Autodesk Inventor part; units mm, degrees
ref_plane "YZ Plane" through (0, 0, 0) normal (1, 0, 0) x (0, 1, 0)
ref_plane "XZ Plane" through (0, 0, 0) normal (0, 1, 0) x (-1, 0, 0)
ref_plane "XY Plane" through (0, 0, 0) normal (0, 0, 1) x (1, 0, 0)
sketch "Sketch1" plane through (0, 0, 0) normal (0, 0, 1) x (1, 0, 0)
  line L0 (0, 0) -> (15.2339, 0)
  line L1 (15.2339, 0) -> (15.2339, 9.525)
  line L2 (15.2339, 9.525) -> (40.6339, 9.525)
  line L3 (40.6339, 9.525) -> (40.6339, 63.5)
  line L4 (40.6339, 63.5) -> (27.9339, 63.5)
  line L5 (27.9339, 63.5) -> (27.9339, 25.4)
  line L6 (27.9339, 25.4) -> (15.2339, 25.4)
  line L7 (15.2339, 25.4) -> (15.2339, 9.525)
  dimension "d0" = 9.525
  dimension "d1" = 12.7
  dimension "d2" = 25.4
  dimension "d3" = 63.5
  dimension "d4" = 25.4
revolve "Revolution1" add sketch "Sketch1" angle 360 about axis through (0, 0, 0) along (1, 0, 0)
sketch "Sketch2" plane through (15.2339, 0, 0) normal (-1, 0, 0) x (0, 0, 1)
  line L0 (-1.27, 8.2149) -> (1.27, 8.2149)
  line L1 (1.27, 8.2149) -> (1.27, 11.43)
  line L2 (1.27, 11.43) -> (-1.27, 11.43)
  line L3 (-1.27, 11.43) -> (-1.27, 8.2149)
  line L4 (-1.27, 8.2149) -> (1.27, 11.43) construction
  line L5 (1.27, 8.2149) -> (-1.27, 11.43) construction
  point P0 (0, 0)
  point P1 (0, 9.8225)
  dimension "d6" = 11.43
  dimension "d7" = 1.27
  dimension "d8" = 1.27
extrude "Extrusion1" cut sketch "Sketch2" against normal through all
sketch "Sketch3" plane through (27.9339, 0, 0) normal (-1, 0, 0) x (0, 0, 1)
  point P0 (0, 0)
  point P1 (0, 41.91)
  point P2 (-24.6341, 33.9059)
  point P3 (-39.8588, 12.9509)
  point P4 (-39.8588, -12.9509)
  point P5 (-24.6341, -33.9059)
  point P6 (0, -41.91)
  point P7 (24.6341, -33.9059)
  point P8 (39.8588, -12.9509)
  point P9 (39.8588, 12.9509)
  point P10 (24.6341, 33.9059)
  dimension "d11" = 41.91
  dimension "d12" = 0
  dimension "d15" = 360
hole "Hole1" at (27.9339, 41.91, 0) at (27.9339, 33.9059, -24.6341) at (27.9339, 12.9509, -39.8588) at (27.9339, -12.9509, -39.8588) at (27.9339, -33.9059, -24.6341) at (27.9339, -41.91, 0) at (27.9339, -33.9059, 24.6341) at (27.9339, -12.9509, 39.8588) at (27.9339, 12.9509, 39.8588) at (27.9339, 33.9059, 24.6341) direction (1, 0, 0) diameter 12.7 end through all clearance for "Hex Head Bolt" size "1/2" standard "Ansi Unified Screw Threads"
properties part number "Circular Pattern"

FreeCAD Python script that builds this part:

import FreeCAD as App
import Part
import Sketcher
from FreeCAD import Vector
Q = App.Units.Quantity

doc = App.newDocument("Part")
params = doc.addObject("Spreadsheet::Sheet", "Params")
for row, (alias, value) in enumerate([
    ("sketch1_width", "1 in"),
    ("revolution_angle", "360 deg"),
    ("sketch3_diameter", "0.5 in"),
    ("hole_diameter", "0.5 in"),
], start=1):
    params.set(f"A{row}", alias)
    params.set(f"B{row}", "=" + value)
    params.setAlias(f"B{row}", alias)

body = doc.addObject("PartDesign::Body", "Body")

# Sketch on XY plane
sketch1 = body.newObject("Sketcher::SketchObject", "Sketch")
sketch1.AttachmentSupport = (doc.getObject("XY_Plane"), [""])
sketch1.MapMode = "FlatFace"
sketch1.addGeometry(Part.LineSegment(Vector(15, 25, 0), Vector(15, 10, 0)), False)
sketch1.addGeometry(Part.LineSegment(Vector(15, 10, 0), Vector(41, 10, 0)), False)
sketch1.addGeometry(Part.LineSegment(Vector(41, 10, 0), Vector(41, 64, 0)), False)
sketch1.addGeometry(Part.LineSegment(Vector(41, 64, 0), Vector(28, 64, 0)), False)
sketch1.addGeometry(Part.LineSegment(Vector(28, 64, 0), Vector(28, 25, 0)), False)
sketch1.addGeometry(Part.LineSegment(Vector(28, 25, 0), Vector(15, 25, 0)), False)
sketch1.addConstraint(Sketcher.Constraint("Coincident", 0, 2, 1, 1))
sketch1.addConstraint(Sketcher.Constraint("Coincident", 1, 2, 2, 1))
sketch1.addConstraint(Sketcher.Constraint("Coincident", 2, 2, 3, 1))
sketch1.addConstraint(Sketcher.Constraint("Coincident", 3, 2, 4, 1))
sketch1.addConstraint(Sketcher.Constraint("Coincident", 4, 2, 5, 1))
sketch1.addConstraint(Sketcher.Constraint("Coincident", 5, 2, 0, 1))
sketch1.addConstraint(Sketcher.Constraint("Vertical", 0))
sketch1.addConstraint(Sketcher.Constraint("Horizontal", 1))
sketch1.addConstraint(Sketcher.Constraint("Vertical", 2))
sketch1.addConstraint(Sketcher.Constraint("Horizontal", 3))
sketch1.addConstraint(Sketcher.Constraint("Vertical", 4))
sketch1.addConstraint(Sketcher.Constraint("Horizontal", 5))
sketch1.addConstraint(Sketcher.Constraint("Equal", 3, 5))
sketch1.addConstraint(Sketcher.Constraint("DistanceX", 1, 1, 1, 2, Q("1 in")))
sketch1.addConstraint(Sketcher.Constraint("DistanceY", -1, 1, 4, 2, Q("1 in")))
sketch1.addConstraint(Sketcher.Constraint("DistanceY", -1, 1, 2, 2, Q("2.5 in")))
sketch1.addConstraint(Sketcher.Constraint("DistanceY", -1, 1, 0, 2, Q("0.375 in")))
sketch1.addConstraint(Sketcher.Constraint("DistanceX", -1, 1, 0, 2, Q("15.234 mm")))
sketch1.setExpression("Constraints[13]", "Params.sketch1_width")
revolution = body.newObject("PartDesign::Revolution", "Revolution")
revolution.Profile = sketch1
revolution.ReferenceAxis = (sketch1, ["H_Axis"])
revolution.setExpression("Angle", "Params.revolution_angle")

# Sketch on YZ plane
sketch2 = body.newObject("Sketcher::SketchObject", "Sketch001")
sketch2.AttachmentSupport = (doc.getObject("YZ_Plane"), [""])
sketch2.MapMode = "FlatFace"
sketch2.AttachmentOffset = App.Placement(Vector(0, 0, 15.2339), App.Rotation())
sketch2.addGeometry(Part.LineSegment(Vector(11.4, -1.3, 0), Vector(8.2, -1.3, 0)), False)
sketch2.addGeometry(Part.LineSegment(Vector(8.2, -1.3, 0), Vector(8.2, 1.3, 0)), False)
sketch2.addGeometry(Part.LineSegment(Vector(8.2, 1.3, 0), Vector(11.4, 1.3, 0)), False)
sketch2.addGeometry(Part.LineSegment(Vector(11.4, 1.3, 0), Vector(11.4, -1.3, 0)), False)
sketch2.addConstraint(Sketcher.Constraint("Coincident", 0, 2, 1, 1))
sketch2.addConstraint(Sketcher.Constraint("Coincident", 1, 2, 2, 1))
sketch2.addConstraint(Sketcher.Constraint("Coincident", 2, 2, 3, 1))
sketch2.addConstraint(Sketcher.Constraint("Coincident", 3, 2, 0, 1))
sketch2.addConstraint(Sketcher.Constraint("Horizontal", 0))
sketch2.addConstraint(Sketcher.Constraint("Vertical", 1))
sketch2.addConstraint(Sketcher.Constraint("Horizontal", 2))
sketch2.addConstraint(Sketcher.Constraint("Vertical", 3))
sketch2.addConstraint(Sketcher.Constraint("DistanceY", 0, 2, -1, 1, Q("0.05 in")))
sketch2.addConstraint(Sketcher.Constraint("DistanceY", -1, 1, 1, 2, Q("0.05 in")))
sketch2.addConstraint(Sketcher.Constraint("DistanceX", -1, 1, 2, 2, Q("0.45 in")))
sketch2.addConstraint(Sketcher.Constraint("DistanceX", 0, 2, 0, 1, Q("3.215 mm")))
pocket1 = body.newObject("PartDesign::Pocket", "Pocket")
pocket1.Profile = sketch2
pocket1.Type = "ThroughAll"
pocket1.Reversed = True

# Sketch on YZ plane
sketch3 = body.newObject("Sketcher::SketchObject", "Sketch002")
sketch3.AttachmentSupport = (doc.getObject("YZ_Plane"), [""])
sketch3.MapMode = "FlatFace"
sketch3.AttachmentOffset = App.Placement(Vector(0, 0, 27.9339), App.Rotation())
sketch3.addGeometry(Part.Circle(Vector(42, 0, 0), Vector(0, 0, 1), 6), False)
sketch3.addGeometry(Part.Circle(Vector(34, -25, 0), Vector(0, 0, 1), 6), False)
sketch3.addGeometry(Part.Circle(Vector(13, -40, 0), Vector(0, 0, 1), 6), False)
sketch3.addGeometry(Part.Circle(Vector(-13, -40, 0), Vector(0, 0, 1), 6), False)
sketch3.addGeometry(Part.Circle(Vector(-34, -25, 0), Vector(0, 0, 1), 6), False)
sketch3.addGeometry(Part.Circle(Vector(-42, 0, 0), Vector(0, 0, 1), 6), False)
sketch3.addGeometry(Part.Circle(Vector(-34, 25, 0), Vector(0, 0, 1), 6), False)
sketch3.addGeometry(Part.Circle(Vector(-13, 40, 0), Vector(0, 0, 1), 6), False)
sketch3.addGeometry(Part.Circle(Vector(13, 40, 0), Vector(0, 0, 1), 6), False)
sketch3.addGeometry(Part.Circle(Vector(34, 25, 0), Vector(0, 0, 1), 6), False)
sketch3.addConstraint(Sketcher.Constraint("Equal", 0, 1))
sketch3.addConstraint(Sketcher.Constraint("Equal", 1, 2))
sketch3.addConstraint(Sketcher.Constraint("Equal", 2, 3))
sketch3.addConstraint(Sketcher.Constraint("Equal", 3, 4))
sketch3.addConstraint(Sketcher.Constraint("Equal", 4, 5))
sketch3.addConstraint(Sketcher.Constraint("Equal", 5, 6))
sketch3.addConstraint(Sketcher.Constraint("Equal", 6, 7))
sketch3.addConstraint(Sketcher.Constraint("Equal", 7, 8))
sketch3.addConstraint(Sketcher.Constraint("Equal", 8, 9))
sketch3.addConstraint(Sketcher.Constraint("Symmetric", 0, 3, 5, 3, -1, 1))
sketch3.addConstraint(Sketcher.Constraint("Symmetric", 1, 3, 6, 3, -1, 1))
sketch3.addConstraint(Sketcher.Constraint("Symmetric", 2, 3, 7, 3, -1, 1))
sketch3.addConstraint(Sketcher.Constraint("Symmetric", 3, 3, 8, 3, -1, 1))
sketch3.addConstraint(Sketcher.Constraint("Symmetric", 4, 3, 9, 3, -1, 1))
sketch3.addConstraint(Sketcher.Constraint("Symmetric", 2, 3, 3, 3, -2))
sketch3.addConstraint(Sketcher.Constraint("Symmetric", 1, 3, 4, 3, -2))
sketch3.addConstraint(Sketcher.Constraint("PointOnObject", 0, 3, -1))
sketch3.addConstraint(Sketcher.Constraint("Diameter", 0, Q("0.5 in")))
sketch3.addConstraint(Sketcher.Constraint("DistanceX", 5, 3, 0, 3, Q("3.3 in")))
sketch3.addConstraint(Sketcher.Constraint("DistanceX", 2, 3, 1, 3, Q("0.825 in")))
sketch3.addConstraint(Sketcher.Constraint("DistanceY", 2, 3, 1, 3, Q("0.5994 in")))
sketch3.addConstraint(Sketcher.Constraint("DistanceY", 4, 3, 6, 3, Q("1.9397 in")))
sketch3.addConstraint(Sketcher.Constraint("DistanceX", -1, 1, 1, 3, Q("33.906 mm")))
sketch3.setExpression("Constraints[17]", "Params.sketch3_diameter")
doc.recompute()
hole = body.newObject("PartDesign::Hole", "Hole")
hole.Profile = sketch3
hole.ThreadType = "None"
hole.setExpression("Diameter", "Params.hole_diameter")
hole.DepthType = "ThroughAll"
hole.Reversed = True

doc.recompute()
